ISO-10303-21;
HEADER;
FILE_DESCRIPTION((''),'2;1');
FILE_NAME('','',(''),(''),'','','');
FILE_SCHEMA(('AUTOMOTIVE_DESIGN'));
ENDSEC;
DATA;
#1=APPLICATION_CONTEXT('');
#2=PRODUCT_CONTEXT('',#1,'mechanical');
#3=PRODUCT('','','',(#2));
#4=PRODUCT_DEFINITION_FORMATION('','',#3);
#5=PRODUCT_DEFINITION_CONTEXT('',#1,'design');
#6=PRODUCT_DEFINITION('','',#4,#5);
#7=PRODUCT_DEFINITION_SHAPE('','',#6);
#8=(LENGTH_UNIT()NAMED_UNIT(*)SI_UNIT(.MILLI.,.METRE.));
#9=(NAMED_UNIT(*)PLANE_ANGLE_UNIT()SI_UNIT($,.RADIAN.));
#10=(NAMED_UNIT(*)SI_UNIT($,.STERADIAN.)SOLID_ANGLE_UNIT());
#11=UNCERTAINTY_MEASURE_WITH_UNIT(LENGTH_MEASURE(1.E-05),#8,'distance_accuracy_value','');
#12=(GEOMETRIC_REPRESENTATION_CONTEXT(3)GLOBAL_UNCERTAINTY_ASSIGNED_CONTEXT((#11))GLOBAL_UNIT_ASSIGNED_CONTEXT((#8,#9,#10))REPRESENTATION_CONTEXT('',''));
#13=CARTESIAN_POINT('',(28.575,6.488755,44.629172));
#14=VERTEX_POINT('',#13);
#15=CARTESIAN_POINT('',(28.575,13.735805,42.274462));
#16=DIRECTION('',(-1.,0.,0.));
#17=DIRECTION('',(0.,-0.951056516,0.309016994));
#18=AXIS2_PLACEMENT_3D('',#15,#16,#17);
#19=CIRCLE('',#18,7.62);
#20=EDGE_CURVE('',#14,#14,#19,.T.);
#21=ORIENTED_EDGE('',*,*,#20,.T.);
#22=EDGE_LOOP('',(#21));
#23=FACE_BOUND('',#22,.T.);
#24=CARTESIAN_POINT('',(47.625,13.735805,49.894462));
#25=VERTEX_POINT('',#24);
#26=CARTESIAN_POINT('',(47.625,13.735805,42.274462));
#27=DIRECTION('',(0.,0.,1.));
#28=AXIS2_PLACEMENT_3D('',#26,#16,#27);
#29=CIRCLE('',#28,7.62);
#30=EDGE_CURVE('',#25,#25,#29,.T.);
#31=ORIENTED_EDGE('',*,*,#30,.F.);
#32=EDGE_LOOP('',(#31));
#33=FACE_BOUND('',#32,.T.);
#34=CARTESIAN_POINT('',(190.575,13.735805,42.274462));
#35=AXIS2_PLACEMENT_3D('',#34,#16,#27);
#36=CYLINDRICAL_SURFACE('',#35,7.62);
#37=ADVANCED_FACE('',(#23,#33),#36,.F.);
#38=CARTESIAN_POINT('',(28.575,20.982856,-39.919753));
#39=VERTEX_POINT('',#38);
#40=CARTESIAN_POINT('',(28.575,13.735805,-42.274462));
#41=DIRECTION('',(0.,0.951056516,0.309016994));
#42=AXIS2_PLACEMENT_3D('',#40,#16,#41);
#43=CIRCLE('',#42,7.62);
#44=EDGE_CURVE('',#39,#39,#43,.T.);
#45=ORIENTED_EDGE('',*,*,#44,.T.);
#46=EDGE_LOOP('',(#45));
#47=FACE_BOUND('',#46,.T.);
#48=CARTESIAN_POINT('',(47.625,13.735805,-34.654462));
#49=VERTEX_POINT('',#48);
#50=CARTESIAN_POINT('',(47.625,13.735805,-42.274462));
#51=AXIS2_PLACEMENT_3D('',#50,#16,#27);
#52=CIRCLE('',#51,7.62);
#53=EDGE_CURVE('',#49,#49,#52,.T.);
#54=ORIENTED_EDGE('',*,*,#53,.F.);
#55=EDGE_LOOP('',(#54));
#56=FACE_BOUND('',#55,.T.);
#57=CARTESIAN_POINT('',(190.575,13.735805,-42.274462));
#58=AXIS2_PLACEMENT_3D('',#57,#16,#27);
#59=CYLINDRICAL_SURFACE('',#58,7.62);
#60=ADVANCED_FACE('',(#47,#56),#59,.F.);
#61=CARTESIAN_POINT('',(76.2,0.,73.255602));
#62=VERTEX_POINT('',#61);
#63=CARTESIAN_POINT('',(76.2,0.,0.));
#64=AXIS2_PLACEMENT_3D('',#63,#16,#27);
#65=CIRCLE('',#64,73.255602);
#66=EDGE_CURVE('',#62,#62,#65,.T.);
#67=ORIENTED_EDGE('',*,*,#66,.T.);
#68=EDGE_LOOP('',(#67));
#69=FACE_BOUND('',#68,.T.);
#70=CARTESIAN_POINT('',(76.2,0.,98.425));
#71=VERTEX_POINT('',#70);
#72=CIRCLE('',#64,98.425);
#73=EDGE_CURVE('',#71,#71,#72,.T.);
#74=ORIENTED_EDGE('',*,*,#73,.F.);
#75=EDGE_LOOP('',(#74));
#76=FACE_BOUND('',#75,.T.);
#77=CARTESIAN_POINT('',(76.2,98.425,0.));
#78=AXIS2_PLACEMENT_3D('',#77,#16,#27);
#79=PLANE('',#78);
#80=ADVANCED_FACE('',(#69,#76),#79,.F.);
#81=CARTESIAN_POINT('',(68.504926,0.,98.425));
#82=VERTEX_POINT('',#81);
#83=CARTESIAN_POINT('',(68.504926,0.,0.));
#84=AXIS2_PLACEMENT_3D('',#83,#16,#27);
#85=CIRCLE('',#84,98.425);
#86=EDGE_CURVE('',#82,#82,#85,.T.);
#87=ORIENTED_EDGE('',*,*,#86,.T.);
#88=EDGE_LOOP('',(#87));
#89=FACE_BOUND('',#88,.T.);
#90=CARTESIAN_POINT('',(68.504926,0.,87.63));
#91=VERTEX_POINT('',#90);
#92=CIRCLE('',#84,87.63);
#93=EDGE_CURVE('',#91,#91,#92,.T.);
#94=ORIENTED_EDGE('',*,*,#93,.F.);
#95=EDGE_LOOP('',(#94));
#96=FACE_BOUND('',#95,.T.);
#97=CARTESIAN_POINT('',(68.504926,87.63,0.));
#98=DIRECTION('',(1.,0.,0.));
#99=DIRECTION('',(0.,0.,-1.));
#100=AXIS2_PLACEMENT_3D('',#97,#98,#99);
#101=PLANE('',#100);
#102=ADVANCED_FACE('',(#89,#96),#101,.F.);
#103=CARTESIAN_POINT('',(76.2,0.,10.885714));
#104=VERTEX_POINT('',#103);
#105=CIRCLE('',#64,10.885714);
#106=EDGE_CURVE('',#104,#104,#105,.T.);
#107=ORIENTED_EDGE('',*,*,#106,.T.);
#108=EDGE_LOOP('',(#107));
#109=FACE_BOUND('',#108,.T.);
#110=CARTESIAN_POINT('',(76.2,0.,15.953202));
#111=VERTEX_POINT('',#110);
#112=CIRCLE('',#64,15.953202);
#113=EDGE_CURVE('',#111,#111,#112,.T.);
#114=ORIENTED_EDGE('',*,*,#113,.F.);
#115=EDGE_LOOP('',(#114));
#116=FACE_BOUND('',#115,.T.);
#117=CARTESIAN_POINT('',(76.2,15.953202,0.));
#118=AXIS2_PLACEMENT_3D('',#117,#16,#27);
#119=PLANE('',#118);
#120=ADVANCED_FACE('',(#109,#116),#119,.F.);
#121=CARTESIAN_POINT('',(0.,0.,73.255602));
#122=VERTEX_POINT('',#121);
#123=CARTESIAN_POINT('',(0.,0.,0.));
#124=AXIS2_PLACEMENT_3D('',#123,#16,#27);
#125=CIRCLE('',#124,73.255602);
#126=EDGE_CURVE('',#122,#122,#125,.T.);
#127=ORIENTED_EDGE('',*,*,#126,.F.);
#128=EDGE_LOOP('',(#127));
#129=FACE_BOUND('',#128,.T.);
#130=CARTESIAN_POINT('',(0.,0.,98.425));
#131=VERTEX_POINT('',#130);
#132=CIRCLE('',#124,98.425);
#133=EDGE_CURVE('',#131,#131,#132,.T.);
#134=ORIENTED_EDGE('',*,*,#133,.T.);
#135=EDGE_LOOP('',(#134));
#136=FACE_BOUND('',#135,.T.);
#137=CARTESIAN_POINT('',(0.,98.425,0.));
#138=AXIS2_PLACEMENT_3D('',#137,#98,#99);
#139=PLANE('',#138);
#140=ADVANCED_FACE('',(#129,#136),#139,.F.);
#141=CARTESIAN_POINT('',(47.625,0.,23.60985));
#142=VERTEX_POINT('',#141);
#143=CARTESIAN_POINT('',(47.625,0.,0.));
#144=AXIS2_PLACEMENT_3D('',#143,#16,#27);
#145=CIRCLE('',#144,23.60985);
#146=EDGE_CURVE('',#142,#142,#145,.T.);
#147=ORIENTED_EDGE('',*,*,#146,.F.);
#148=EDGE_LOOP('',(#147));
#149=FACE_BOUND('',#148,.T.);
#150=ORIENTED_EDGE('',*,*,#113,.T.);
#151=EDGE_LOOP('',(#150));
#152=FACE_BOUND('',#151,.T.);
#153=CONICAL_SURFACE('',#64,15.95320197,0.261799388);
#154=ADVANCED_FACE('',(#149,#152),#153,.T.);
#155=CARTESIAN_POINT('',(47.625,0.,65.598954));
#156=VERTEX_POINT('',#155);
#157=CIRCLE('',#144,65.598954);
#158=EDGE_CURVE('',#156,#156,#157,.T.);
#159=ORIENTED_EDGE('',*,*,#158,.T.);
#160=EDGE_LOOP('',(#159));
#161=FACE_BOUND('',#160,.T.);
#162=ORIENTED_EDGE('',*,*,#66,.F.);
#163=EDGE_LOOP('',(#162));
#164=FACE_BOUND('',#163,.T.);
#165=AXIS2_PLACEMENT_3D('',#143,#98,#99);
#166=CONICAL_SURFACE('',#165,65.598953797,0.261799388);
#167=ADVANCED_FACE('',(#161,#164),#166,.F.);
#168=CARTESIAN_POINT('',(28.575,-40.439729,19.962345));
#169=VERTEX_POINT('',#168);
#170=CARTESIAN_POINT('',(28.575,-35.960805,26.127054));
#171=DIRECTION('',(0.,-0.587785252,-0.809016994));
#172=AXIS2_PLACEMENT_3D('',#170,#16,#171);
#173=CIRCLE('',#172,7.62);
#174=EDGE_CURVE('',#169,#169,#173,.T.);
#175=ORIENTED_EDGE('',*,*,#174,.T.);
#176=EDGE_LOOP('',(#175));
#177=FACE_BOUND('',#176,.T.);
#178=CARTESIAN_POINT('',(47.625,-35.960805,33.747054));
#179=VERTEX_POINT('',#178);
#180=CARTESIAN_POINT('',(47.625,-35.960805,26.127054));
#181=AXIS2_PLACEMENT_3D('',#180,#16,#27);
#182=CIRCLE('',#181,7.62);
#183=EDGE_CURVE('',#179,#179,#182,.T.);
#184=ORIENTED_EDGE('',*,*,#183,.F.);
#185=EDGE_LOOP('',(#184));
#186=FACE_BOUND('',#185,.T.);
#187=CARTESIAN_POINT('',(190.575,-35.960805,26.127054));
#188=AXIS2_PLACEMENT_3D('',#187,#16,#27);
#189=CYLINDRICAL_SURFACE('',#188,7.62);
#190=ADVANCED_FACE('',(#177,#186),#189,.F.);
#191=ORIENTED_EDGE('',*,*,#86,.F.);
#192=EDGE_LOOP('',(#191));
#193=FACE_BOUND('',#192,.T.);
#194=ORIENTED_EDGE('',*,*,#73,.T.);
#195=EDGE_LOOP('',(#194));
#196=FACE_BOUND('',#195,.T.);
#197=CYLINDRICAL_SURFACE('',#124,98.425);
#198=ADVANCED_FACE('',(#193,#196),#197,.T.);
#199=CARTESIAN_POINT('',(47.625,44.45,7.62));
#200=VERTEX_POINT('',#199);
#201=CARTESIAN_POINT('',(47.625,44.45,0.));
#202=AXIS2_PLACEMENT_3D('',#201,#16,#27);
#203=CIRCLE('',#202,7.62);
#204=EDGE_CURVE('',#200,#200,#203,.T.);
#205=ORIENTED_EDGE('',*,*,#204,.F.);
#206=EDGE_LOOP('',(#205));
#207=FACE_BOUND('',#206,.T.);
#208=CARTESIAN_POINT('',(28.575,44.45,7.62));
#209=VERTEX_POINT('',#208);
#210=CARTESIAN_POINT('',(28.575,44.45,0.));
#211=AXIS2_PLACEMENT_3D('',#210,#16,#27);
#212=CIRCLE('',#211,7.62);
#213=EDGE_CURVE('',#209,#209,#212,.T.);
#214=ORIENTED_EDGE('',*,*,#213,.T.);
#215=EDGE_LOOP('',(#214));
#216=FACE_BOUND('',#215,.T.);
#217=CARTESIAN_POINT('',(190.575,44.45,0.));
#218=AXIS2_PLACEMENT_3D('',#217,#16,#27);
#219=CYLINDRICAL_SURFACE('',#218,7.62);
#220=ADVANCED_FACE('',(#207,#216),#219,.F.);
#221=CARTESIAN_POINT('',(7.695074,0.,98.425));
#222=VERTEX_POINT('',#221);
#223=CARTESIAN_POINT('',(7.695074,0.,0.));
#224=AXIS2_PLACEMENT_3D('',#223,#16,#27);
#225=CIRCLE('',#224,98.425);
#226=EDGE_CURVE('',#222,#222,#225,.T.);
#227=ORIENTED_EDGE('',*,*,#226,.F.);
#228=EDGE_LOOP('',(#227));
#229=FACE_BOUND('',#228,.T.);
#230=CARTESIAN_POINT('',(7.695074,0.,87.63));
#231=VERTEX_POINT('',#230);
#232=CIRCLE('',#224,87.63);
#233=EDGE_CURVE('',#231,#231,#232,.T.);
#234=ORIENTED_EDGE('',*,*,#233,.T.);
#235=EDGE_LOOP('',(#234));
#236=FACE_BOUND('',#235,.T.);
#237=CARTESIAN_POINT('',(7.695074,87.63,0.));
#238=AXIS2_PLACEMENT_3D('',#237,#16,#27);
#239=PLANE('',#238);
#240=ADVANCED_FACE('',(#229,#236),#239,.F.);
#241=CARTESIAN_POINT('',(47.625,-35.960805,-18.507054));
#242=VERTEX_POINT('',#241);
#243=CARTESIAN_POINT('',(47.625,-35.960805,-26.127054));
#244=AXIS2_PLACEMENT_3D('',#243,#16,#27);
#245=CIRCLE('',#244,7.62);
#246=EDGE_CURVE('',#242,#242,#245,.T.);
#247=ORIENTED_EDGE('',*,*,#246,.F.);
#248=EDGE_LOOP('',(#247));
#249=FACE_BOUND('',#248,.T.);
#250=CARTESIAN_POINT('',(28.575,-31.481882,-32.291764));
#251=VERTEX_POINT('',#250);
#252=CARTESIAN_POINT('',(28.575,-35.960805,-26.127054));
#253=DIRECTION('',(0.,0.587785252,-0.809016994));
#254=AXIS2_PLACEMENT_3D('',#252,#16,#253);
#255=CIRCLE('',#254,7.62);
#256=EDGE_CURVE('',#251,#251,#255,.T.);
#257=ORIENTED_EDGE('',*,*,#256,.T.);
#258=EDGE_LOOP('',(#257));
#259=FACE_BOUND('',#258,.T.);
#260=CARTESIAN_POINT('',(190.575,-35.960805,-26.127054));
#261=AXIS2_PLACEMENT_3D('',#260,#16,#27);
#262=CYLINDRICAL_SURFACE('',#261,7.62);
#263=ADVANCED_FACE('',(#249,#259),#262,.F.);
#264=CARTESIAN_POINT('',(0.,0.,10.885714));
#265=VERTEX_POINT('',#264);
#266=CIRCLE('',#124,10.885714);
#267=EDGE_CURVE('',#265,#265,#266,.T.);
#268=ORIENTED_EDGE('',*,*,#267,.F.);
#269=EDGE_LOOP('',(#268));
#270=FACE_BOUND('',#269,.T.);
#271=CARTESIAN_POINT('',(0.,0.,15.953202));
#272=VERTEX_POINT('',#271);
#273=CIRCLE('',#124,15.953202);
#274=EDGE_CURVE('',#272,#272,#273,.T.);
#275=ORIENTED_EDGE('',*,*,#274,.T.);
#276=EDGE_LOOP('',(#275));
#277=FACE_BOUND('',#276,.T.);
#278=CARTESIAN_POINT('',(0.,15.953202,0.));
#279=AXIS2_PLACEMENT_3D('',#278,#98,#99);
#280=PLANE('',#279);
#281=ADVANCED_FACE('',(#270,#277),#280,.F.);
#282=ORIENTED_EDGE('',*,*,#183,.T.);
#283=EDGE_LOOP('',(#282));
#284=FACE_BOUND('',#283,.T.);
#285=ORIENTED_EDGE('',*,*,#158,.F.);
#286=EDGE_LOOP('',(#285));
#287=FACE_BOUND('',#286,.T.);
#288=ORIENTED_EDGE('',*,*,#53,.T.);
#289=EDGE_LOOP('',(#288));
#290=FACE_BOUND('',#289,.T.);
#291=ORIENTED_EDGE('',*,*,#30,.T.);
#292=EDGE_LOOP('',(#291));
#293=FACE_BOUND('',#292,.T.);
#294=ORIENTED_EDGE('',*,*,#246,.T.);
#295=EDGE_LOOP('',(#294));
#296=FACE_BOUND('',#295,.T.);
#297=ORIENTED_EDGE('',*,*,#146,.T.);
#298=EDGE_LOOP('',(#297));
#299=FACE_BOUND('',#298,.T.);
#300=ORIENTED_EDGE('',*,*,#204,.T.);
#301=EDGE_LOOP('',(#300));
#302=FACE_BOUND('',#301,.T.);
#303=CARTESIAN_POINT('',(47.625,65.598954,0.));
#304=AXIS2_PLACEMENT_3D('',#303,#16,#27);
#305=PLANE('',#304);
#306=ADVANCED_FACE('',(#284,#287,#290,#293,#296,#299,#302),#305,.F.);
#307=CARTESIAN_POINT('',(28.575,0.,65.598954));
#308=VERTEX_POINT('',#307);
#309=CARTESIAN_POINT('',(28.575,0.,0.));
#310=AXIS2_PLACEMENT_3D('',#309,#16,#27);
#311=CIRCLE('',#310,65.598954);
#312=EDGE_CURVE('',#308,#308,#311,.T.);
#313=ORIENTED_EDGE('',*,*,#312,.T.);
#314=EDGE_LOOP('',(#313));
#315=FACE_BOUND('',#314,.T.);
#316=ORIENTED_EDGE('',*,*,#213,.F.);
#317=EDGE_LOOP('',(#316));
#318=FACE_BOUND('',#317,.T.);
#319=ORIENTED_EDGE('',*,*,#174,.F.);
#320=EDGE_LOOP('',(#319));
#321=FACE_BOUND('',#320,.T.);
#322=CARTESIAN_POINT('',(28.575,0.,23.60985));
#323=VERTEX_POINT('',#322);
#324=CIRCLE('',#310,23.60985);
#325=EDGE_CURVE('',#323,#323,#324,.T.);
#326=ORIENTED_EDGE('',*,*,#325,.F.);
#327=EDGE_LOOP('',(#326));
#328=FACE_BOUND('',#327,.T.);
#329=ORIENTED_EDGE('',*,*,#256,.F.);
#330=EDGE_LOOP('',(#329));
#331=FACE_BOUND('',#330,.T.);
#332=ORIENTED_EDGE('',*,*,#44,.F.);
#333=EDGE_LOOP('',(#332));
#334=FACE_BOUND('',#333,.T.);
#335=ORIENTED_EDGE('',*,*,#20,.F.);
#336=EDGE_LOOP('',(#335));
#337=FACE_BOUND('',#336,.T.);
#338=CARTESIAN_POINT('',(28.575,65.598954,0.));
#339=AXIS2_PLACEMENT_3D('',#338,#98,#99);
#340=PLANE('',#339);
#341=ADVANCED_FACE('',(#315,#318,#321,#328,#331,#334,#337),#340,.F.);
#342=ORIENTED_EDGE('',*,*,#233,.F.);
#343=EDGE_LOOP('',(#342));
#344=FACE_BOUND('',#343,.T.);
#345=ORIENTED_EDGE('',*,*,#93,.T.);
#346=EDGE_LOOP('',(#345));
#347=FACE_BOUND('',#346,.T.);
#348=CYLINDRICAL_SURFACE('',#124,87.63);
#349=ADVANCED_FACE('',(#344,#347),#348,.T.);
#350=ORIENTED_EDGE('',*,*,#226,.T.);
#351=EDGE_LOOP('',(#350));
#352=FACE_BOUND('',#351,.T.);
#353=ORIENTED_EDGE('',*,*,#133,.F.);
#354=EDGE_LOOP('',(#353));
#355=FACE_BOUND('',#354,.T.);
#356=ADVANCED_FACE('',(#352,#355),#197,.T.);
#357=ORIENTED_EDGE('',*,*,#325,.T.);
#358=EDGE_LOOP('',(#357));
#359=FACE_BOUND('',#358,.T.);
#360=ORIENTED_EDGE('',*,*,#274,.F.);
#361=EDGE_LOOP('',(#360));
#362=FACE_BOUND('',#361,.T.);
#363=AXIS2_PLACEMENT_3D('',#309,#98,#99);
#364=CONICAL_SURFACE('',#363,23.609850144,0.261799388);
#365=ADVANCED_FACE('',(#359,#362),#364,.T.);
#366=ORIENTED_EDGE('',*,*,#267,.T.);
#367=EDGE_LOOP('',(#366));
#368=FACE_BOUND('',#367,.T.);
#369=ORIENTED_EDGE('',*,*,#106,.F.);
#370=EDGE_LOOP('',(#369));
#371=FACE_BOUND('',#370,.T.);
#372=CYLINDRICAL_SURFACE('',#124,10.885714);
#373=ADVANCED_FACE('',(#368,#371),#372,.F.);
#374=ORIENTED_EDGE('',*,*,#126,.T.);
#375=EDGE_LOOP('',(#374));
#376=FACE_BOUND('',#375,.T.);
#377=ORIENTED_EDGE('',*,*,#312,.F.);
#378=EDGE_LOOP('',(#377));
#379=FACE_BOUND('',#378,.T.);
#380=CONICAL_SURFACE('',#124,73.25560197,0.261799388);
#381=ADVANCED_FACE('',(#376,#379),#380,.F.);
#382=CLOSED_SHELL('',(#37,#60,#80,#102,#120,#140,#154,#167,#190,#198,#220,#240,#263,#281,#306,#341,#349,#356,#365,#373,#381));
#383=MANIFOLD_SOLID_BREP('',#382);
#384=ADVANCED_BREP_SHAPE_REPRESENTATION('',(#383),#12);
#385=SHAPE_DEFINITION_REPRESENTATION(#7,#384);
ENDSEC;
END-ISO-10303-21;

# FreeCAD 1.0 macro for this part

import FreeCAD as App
import Part
import Sketcher

V = App.Vector
Q = App.Units.Quantity


def add_polygon(sketch, points):
    """Adds a closed chain of lines whose ends are joined by coincident constraints."""
    first, n = sketch.GeometryCount, len(points)
    for a, b in zip(points, points[1:] + points[:1]):
        sketch.addGeometry(Part.LineSegment(App.Vector(*a, 0), App.Vector(*b, 0)), False)
    for i in range(n):
        sketch.addConstraint(Sketcher.Constraint("Coincident", first + i, 2, first + (i + 1) % n, 1))

doc = App.newDocument("Part")
body = doc.addObject("PartDesign::Body", "Body")

# Sketch on XY plane
sketch1 = doc.addObject("Sketcher::SketchObject", "Sketch")
body.addObject(sketch1)
sketch1.AttachmentSupport = (doc.XY_Plane, [""])
sketch1.MapMode = "FlatFace"
add_polygon(sketch1, [(0, 11), (76, 11), (76, 16), (48, 24), (48, 66), (76, 73), (76, 98), (69, 98), (69, 88), (8, 88), (8, 98), (0, 98), (0, 73), (29, 66), (29, 24), (0, 16)])  # lines 0-15
sketch1.addConstraint([
    Sketcher.Constraint("Horizontal", 0),
    Sketcher.Constraint("Vertical", 1),
    Sketcher.Constraint("Vertical", 3),
    Sketcher.Constraint("Vertical", 5),
    Sketcher.Constraint("Horizontal", 6),
    Sketcher.Constraint("Vertical", 7),
    Sketcher.Constraint("Horizontal", 8),
    Sketcher.Constraint("Vertical", 9),
    Sketcher.Constraint("Horizontal", 10),
    Sketcher.Constraint("Vertical", 11),
    Sketcher.Constraint("Vertical", 13),
    Sketcher.Constraint("Vertical", 15),
    Sketcher.Constraint("PointOnObject", 10, 2, -2),
    Sketcher.Constraint("PointOnObject", 14, 2, -2),
    Sketcher.Constraint("Parallel", 2, 12),
    Sketcher.Constraint("Parallel", 4, 14),
    Sketcher.Constraint("Horizontal", 6, 2, 9, 2),
    Sketcher.Constraint("Horizontal", 4, 2, 11, 2),
    Sketcher.Constraint("Horizontal", 3, 2, 12, 2),
    Sketcher.Constraint("Horizontal", 2, 2, 13, 2),
    Sketcher.Constraint("Horizontal", 1, 2, 14, 2),
    Sketcher.Constraint("Vertical", 1, 2, 4, 2),
    Sketcher.Constraint("Equal", 6, 10),
    Sketcher.Constraint("DistanceX", 0, 1, 0, 2, Q("3 in")),
    Sketcher.Constraint("Angle", 2, Q("165 deg")),
    Sketcher.Constraint("DistanceY", 7, 2, 7, 1, Q("0.425 in")),
    Sketcher.Constraint("DistanceY", -1, 1, 7, 2, Q("3.45 in")),
    Sketcher.Constraint("DistanceX", 12, 2, 3, 2, Q("0.75 in")),
    Sketcher.Constraint("DistanceY", 1, 2, 4, 2, Q("2.256 in")),
    Sketcher.Constraint("DistanceY", 5, 1, 5, 2, Q("25.169398 mm")),
    Sketcher.Constraint("DistanceX", 6, 2, 6, 1, Q("7.695074 mm")),
    Sketcher.Constraint("DistanceY", 1, 1, 1, 2, Q("5.067488 mm")),
])
revolution = doc.addObject("PartDesign::Revolution", "Revolution")
body.addObject(revolution)
revolution.Profile = sketch1
revolution.ReferenceAxis = (sketch1, ["H_Axis"])
revolution.Angle = 360

# Sketch on YZ plane
sketch2 = doc.addObject("Sketcher::SketchObject", "Sketch001")
body.addObject(sketch2)
sketch2.AttachmentSupport = (doc.YZ_Plane, [""])
sketch2.MapMode = "FlatFace"
sketch2.AttachmentOffset = App.Placement(V(0, 0, 1.125 * 25.4), App.Rotation())
sketch2.addGeometry(Part.Circle(V(44, 0, 0), V(0, 0, 1), 8), False)
sketch2.addConstraint([
    Sketcher.Constraint("PointOnObject", 0, 3, -1),
    Sketcher.Constraint("Diameter", 0, Q("0.6 in")),
    Sketcher.Constraint("DistanceX", -1, 1, 0, 3, Q("1.75 in")),
])
pocket1 = doc.addObject("PartDesign::Pocket", "Pocket")
body.addObject(pocket1)
pocket1.Profile = sketch2
pocket1.Length = 162
pocket1.Reversed = True
doc.recompute()

polarpattern = doc.addObject("PartDesign::PolarPattern", "PolarPattern")
body.addObject(polarpattern)
polarpattern.Originals = [pocket1]
polarpattern.Axis = (doc.X_Axis, [""])
polarpattern.Angle = 360
polarpattern.Occurrences = 5
body.Tip = polarpattern

doc.recompute()
